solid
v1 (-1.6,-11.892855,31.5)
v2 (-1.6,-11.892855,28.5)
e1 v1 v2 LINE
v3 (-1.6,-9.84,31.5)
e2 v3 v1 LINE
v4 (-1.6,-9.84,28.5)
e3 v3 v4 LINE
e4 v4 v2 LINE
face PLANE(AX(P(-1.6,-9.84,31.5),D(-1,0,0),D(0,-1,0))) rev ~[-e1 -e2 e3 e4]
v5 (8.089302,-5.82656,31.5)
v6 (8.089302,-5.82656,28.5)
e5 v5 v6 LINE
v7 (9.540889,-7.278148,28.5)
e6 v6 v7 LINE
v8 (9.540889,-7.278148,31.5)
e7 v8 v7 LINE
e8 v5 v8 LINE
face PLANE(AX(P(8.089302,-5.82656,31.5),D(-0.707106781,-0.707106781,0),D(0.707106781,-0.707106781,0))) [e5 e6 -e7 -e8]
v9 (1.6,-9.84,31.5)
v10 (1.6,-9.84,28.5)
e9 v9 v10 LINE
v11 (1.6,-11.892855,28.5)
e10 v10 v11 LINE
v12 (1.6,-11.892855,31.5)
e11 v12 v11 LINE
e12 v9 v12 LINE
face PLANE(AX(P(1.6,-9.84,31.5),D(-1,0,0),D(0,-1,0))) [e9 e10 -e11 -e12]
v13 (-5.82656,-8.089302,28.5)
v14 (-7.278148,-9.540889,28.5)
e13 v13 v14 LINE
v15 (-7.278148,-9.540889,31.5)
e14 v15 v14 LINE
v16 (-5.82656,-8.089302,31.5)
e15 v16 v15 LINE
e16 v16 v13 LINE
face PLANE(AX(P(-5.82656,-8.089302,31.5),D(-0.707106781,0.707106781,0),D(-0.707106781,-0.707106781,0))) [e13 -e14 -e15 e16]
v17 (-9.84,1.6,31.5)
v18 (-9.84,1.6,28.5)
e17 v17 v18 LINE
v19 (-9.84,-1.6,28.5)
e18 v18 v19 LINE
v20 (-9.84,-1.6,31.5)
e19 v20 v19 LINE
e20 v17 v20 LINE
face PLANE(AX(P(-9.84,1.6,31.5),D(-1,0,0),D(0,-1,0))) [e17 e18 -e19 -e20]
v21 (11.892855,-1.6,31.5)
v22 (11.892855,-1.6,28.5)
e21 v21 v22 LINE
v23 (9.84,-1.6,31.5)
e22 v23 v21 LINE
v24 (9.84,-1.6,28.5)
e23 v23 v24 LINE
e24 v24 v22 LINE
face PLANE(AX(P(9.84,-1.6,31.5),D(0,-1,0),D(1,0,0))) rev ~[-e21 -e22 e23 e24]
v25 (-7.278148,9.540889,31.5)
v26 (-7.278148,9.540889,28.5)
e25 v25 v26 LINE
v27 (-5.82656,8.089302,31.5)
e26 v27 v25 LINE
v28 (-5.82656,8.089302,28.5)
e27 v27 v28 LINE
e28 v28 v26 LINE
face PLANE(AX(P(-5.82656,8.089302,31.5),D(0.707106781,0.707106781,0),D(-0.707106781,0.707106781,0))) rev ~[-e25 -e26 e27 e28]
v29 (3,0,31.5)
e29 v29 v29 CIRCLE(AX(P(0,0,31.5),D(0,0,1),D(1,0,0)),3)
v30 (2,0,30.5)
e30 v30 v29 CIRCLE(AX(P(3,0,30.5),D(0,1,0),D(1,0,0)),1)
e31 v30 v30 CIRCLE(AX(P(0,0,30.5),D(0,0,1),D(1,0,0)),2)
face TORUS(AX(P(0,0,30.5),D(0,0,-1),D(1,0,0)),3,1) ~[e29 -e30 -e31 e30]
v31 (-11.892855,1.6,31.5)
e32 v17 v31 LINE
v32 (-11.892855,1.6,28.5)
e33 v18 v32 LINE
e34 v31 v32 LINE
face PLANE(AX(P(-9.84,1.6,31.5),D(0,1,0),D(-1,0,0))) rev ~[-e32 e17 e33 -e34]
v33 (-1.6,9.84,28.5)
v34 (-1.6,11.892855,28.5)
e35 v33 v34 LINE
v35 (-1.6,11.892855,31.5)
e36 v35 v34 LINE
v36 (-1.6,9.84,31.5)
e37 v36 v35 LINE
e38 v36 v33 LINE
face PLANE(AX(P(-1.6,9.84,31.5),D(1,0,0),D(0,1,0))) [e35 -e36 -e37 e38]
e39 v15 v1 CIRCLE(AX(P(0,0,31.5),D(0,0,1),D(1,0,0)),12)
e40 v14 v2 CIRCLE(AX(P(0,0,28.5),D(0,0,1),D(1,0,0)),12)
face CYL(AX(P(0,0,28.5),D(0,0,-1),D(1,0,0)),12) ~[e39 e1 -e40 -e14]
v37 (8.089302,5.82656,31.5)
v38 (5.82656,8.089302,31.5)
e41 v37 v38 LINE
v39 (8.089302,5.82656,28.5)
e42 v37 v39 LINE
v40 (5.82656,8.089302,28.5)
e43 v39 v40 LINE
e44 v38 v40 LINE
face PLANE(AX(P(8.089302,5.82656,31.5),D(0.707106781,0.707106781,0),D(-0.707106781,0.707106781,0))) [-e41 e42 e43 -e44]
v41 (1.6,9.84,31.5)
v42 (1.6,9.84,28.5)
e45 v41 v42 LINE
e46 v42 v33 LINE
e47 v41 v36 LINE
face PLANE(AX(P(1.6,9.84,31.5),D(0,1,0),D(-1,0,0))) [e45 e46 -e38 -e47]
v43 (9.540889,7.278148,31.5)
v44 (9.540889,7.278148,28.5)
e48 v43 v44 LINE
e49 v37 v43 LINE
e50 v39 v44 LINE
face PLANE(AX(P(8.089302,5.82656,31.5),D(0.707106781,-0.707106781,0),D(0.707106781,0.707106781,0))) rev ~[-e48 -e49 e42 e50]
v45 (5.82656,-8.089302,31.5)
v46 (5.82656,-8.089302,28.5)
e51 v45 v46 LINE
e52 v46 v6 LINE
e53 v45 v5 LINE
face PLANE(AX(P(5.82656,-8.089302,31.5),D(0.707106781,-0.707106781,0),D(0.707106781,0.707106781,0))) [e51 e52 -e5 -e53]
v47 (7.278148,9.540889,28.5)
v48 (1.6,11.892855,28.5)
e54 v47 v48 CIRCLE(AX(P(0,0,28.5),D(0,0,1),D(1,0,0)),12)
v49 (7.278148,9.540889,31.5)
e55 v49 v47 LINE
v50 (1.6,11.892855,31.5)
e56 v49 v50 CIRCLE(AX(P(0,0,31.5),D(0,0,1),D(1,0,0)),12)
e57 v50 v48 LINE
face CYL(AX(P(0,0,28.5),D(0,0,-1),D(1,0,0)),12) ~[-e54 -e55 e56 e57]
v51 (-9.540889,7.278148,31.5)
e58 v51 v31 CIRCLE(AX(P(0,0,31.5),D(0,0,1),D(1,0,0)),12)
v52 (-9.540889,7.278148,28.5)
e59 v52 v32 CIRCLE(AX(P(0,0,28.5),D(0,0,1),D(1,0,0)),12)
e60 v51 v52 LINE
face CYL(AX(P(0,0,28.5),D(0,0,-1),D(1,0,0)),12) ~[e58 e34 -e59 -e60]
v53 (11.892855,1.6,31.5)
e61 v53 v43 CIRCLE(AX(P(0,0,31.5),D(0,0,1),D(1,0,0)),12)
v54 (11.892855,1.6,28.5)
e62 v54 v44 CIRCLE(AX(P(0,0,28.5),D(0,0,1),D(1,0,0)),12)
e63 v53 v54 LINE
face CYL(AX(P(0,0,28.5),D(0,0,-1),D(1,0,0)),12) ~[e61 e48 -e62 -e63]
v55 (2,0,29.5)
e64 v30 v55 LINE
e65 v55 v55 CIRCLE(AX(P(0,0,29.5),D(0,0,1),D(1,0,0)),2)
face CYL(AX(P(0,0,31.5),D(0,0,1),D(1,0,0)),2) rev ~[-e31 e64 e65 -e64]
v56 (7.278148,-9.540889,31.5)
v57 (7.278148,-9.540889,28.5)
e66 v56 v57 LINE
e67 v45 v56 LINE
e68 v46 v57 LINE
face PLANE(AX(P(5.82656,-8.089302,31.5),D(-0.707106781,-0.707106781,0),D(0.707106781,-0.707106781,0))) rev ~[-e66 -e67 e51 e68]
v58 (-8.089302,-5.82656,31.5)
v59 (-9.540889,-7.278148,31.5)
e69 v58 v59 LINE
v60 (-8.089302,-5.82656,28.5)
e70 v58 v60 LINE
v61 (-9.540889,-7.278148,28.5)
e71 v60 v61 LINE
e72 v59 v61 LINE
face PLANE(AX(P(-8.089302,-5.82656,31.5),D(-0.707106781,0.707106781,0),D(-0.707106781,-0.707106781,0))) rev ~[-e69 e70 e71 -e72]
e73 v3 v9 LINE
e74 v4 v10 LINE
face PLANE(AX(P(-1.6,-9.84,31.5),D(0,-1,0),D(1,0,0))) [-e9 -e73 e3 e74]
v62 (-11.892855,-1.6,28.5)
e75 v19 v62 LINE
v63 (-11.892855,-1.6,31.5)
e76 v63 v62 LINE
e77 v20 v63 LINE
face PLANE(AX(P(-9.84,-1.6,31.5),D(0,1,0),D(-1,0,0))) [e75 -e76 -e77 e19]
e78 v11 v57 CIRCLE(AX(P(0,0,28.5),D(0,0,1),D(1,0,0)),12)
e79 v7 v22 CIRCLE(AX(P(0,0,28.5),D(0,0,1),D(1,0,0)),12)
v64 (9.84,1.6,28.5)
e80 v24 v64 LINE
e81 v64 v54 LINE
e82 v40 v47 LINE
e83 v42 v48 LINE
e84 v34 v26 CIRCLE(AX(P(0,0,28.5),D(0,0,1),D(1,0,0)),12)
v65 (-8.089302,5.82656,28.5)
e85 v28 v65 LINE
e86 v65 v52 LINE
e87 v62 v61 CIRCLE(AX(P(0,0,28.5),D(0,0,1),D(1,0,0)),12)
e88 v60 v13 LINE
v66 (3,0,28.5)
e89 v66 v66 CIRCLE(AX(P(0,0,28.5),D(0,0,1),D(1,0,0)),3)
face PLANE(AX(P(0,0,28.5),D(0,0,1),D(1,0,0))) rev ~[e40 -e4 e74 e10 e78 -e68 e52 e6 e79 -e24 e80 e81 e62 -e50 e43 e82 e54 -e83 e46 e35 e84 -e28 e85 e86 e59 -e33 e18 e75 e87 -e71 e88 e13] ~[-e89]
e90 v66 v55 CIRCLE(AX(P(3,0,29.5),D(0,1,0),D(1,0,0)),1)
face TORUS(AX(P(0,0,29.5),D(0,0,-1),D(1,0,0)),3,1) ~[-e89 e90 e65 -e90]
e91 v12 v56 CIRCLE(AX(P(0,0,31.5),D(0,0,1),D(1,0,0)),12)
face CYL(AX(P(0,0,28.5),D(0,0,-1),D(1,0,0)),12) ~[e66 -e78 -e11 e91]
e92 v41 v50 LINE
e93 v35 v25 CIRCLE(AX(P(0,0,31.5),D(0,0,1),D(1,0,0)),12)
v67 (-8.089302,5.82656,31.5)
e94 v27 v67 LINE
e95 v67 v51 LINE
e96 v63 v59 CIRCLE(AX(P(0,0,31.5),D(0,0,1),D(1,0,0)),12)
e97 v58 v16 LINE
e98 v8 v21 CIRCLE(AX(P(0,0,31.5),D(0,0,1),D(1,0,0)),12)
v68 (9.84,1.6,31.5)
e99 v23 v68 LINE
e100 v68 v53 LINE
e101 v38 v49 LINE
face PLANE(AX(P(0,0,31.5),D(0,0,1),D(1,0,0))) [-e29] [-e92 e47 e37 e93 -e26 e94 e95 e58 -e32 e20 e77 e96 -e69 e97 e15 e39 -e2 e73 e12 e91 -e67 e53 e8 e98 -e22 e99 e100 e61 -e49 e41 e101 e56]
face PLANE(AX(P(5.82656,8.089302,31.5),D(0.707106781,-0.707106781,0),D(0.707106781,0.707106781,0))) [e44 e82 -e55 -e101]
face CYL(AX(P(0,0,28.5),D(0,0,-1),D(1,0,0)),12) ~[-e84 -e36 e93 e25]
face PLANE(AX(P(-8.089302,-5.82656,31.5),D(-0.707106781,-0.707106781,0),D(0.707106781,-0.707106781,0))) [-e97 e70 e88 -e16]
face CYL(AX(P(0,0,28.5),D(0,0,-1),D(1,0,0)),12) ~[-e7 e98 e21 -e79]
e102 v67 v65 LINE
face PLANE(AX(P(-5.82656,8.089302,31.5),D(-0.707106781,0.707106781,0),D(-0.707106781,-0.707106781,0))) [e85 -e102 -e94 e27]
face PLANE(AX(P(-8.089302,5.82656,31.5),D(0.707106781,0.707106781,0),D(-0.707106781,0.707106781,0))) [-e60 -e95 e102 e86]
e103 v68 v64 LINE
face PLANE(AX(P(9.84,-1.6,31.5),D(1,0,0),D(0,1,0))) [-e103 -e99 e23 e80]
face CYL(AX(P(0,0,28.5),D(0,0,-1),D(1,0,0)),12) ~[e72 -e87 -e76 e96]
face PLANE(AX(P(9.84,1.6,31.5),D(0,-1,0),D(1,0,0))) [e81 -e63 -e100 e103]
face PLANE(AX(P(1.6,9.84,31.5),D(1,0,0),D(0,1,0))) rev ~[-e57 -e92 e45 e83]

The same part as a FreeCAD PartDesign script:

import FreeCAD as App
import Part
import Sketcher


def edges_at(feature, points):
    """Names of the edges that pass closest to the given points."""
    edges = feature.Shape.Edges
    near = lambda p: min(range(len(edges)), key=lambda i: edges[i].distToShape(Part.Vertex(*p))[0])
    return sorted({f"Edge{near(p) + 1}" for p in points})


def add_polygon(sketch, points):
    """Adds a closed chain of lines whose ends are joined by coincident constraints."""
    first, n = sketch.GeometryCount, len(points)
    for a, b in zip(points, points[1:] + points[:1]):
        sketch.addGeometry(Part.LineSegment(App.Vector(*a, 0), App.Vector(*b, 0)), False)
    for i in range(n):
        sketch.addConstraint(Sketcher.Constraint("Coincident", first + i, 2, first + (i + 1) % n, 1))

doc = App.newDocument("Part")
body = doc.addObject("PartDesign::Body", "Body")

sketch1 = body.newObject("Sketcher::SketchObject", "Sketch")
sketch1.AttachmentSupport = (doc.getObject("XY_Plane"), [""])
sketch1.MapMode = "FlatFace"
sketch1.AttachmentOffset = App.Placement(App.Vector(0, 0, 28.5), App.Rotation())
sketch1.addGeometry(Part.Circle(App.Vector(0, 0, 0), App.Vector(0, 0, 1), 12), False)
sketch1.addConstraint([
    Sketcher.Constraint("Coincident", 0, 3, -1, 1),
    Sketcher.Constraint("Diameter", 0, 24.0),
])
pad1 = body.newObject("PartDesign::Pad", "Pad")
pad1.Profile = sketch1
pad1.Length = 3

sketch2 = body.newObject("Sketcher::SketchObject", "Sketch001")
sketch2.AttachmentSupport = (doc.getObject("XY_Plane"), [""])
sketch2.MapMode = "FlatFace"
sketch2.AttachmentOffset = App.Placement(App.Vector(0, 0, 31.5), App.Rotation())
add_polygon(sketch2, [(9.84, 1.6), (9.84, -1.6), (12.41, -1.6), (12.41, 1.6)])
sketch2.addConstraint([
    Sketcher.Constraint("Vertical", 0),
    Sketcher.Constraint("Horizontal", 1),
    Sketcher.Constraint("Vertical", 2),
    Sketcher.Constraint("Horizontal", 3),
    Sketcher.Constraint("DistanceY", 0, 2, 0, 1, 3.2),
    Sketcher.Constraint("DistanceX", 1, 1, 1, 2, 2.57),
    Sketcher.Constraint("DistanceY", 0, 2, -1, 1, 1.6),
    Sketcher.Constraint("DistanceX", -1, 1, 0, 2, 9.84),
])
pocket1 = body.newObject("PartDesign::Pocket", "Pocket")
pocket1.Profile = sketch2
pocket1.Length = 5
doc.recompute()

polarpattern = body.newObject("PartDesign::PolarPattern", "PolarPattern")
polarpattern.Originals = [pocket1]
polarpattern.Axis = (doc.getObject("Z_Axis"), [""])
polarpattern.Angle = 360
polarpattern.Occurrences = 8
body.Tip = polarpattern

sketch3 = body.newObject("Sketcher::SketchObject", "Sketch002")
sketch3.AttachmentSupport = (doc.getObject("XY_Plane"), [""])
sketch3.MapMode = "FlatFace"
sketch3.AttachmentOffset = App.Placement(App.Vector(0, 0, 31.5), App.Rotation())
sketch3.addGeometry(Part.Circle(App.Vector(0, 0, 0), App.Vector(0, 0, 1), 2), False)
sketch3.addConstraint([
    Sketcher.Constraint("Coincident", 0, 3, -1, 1),
    Sketcher.Constraint("Diameter", 0, 4.0),
])
pocket2 = body.newObject("PartDesign::Pocket", "Pocket001")
pocket2.Profile = sketch3
pocket2.Length = 6
doc.recompute()

fillet = body.newObject("PartDesign::Fillet", "Fillet")
fillet.Base = (pocket2, edges_at(pocket2, [(-2, 0, 28.5)]))
fillet.Radius = 1
doc.recompute()

fillet2 = body.newObject("PartDesign::Fillet", "Fillet001")
fillet2.Base = (fillet, edges_at(fillet, [(-2, 0, 31.5)]))
fillet2.Radius = 1

doc.recompute()
